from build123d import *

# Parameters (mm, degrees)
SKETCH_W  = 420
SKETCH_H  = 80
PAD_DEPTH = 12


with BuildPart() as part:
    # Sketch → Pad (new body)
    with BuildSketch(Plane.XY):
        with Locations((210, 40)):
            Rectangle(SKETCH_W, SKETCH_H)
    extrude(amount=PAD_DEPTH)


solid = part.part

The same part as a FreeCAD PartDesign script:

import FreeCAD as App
import Part
import Sketcher
from FreeCAD import Vector
Q = App.Units.Quantity


def add_polygon(sketch, points):
    """Adds a closed chain of lines whose ends are joined by coincident constraints."""
    first, n = sketch.GeometryCount, len(points)
    for a, b in zip(points, points[1:] + points[:1]):
        sketch.addGeometry(Part.LineSegment(App.Vector(*a, 0), App.Vector(*b, 0)), False)
    for i in range(n):
        sketch.addConstraint(Sketcher.Constraint("Coincident", first + i, 2, first + (i + 1) % n, 1))

doc = App.newDocument("Part")
body = doc.addObject("PartDesign::Body", "Body")

sketch1 = body.newObject("Sketcher::SketchObject", "Sketch")
sketch1.AttachmentSupport = (doc.getObject("XY_Plane"), [""])
sketch1.MapMode = "FlatFace"
add_polygon(sketch1, [(0, 80), (0, 0), (420, 0), (420, 80)])
sketch1.addConstraint(Sketcher.Constraint("Vertical", 0))
sketch1.addConstraint(Sketcher.Constraint("Horizontal", 1))
sketch1.addConstraint(Sketcher.Constraint("Vertical", 2))
sketch1.addConstraint(Sketcher.Constraint("Horizontal", 3))
sketch1.addConstraint(Sketcher.Constraint("Coincident", 0, 2, -1, 1))
sketch1.addConstraint(Sketcher.Constraint("DistanceX", 1, 1, 1, 2, Q("420 mm")))
sketch1.addConstraint(Sketcher.Constraint("DistanceY", 0, 2, 0, 1, Q("80 mm")))
pad1 = body.newObject("PartDesign::Pad", "Pad")
pad1.Profile = sketch1
pad1.Length = 12

doc.recompute()
